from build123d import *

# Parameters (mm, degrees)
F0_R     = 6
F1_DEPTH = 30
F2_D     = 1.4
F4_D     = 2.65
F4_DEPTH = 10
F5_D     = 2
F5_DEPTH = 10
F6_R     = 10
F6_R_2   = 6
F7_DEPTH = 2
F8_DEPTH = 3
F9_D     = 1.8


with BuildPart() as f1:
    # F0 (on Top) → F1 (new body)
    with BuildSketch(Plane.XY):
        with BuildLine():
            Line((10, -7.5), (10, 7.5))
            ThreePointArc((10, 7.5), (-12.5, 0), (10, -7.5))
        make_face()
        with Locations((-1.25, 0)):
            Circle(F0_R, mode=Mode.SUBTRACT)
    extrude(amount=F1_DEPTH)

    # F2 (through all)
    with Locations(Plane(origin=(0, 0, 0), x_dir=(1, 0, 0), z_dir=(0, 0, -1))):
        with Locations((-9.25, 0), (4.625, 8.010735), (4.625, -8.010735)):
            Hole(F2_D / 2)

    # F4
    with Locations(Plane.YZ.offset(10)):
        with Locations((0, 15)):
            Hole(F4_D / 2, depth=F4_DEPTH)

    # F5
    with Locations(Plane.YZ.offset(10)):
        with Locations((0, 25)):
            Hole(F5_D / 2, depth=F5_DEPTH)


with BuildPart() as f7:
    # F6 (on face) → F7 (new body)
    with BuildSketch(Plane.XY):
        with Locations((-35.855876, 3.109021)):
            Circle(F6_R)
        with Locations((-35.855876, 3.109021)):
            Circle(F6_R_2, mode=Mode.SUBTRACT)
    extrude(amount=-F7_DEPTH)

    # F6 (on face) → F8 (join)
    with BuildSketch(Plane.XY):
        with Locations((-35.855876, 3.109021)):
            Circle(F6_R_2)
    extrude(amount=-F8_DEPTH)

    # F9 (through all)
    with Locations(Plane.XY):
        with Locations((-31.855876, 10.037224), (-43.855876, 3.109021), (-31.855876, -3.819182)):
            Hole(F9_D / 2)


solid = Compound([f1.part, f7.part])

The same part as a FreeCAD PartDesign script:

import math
import FreeCAD as App
import Part
import Sketcher
from FreeCAD import Vector

doc = App.newDocument("Part")
params = doc.addObject("Spreadsheet::Sheet", "Params")
for row, (alias, value) in enumerate([
    ("sketch1_diameter", "12 mm"),
    ("sketch1_radius", "12.5 mm"),
    ("sketch1_height", "15 mm"),
    ("pad1_length", "30 mm"),
    ("sketch2_diameter", "1.4 mm"),
    ("hole_diameter", "1.4 mm"),
    ("sketch3_diameter", "2.65 mm"),
    ("hole2_diameter", "2.65 mm"),
    ("hole2_depth", "10 mm"),
    ("sketch4_diameter", "2 mm"),
    ("hole3_diameter", "2 mm"),
    ("hole3_depth", "10 mm"),
    ("sketch5_diameter", "20 mm"),
    ("sketch5_diameter2", "12 mm"),
    ("pad2_length", "2 mm"),
    ("sketch6_diameter", "12 mm"),
    ("pad3_length", "3 mm"),
    ("sketch7_diameter", "1.8 mm"),
    ("hole4_diameter", "1.8 mm"),
], start=1):
    params.set(f"A{row}", alias)
    params.set(f"B{row}", "=" + value)
    params.setAlias(f"B{row}", alias)

body = doc.addObject("PartDesign::Body", "Body")

# Sketch on XY plane
sketch1 = doc.addObject("Sketcher::SketchObject", "Sketch")
body.addObject(sketch1)
sketch1.AttachmentSupport = (doc.XY_Plane, [""])
sketch1.MapMode = "FlatFace"
sketch1.addGeometry(Part.LineSegment(Vector(10, -8, 0), Vector(10, 8, 0)), False)
sketch1.addGeometry(Part.ArcOfCircle(Part.Circle(Vector(0, 0, 0), Vector(0, 0, 1), 12), math.radians(37), math.radians(323)), False)
sketch1.addGeometry(Part.Circle(Vector(-1, 0, 0), Vector(0, 0, 1), 6), False)
sketch1.addConstraint(Sketcher.Constraint("Coincident", 0, 1, 1, 2))
sketch1.addConstraint(Sketcher.Constraint("Coincident", 1, 1, 0, 2))
sketch1.addConstraint(Sketcher.Constraint("Vertical", 0))
sketch1.addConstraint(Sketcher.Constraint("Coincident", 1, 3, -1, 1))
sketch1.addConstraint(Sketcher.Constraint("PointOnObject", 2, 3, -1))
sketch1.addConstraint(Sketcher.Constraint("Diameter", 2, 12.0))
sketch1.addConstraint(Sketcher.Constraint("Radius", 1, 12.5))
sketch1.addConstraint(Sketcher.Constraint("DistanceY", 0, 1, 0, 2, 15.0))
sketch1.addConstraint(Sketcher.Constraint("DistanceX", 2, 3, -1, 1, 1.25))
sketch1.setExpression("Constraints[5]", "Params.sketch1_diameter")
sketch1.setExpression("Constraints[6]", "Params.sketch1_radius")
sketch1.setExpression("Constraints[7]", "Params.sketch1_height")
pad1 = doc.addObject("PartDesign::Pad", "Pad")
body.addObject(pad1)
pad1.Profile = sketch1
pad1.setExpression("Length", "Params.pad1_length")

# Sketch on XY plane
sketch2 = doc.addObject("Sketcher::SketchObject", "Sketch001")
body.addObject(sketch2)
sketch2.AttachmentSupport = (doc.XY_Plane, [""])
sketch2.MapMode = "FlatFace"
sketch2.addGeometry(Part.Circle(Vector(-9.2, 0, 0), Vector(0, 0, 1), 0.7), False)
sketch2.addGeometry(Part.Circle(Vector(4.6, -8, 0), Vector(0, 0, 1), 0.7), False)
sketch2.addGeometry(Part.Circle(Vector(4.6, 8, 0), Vector(0, 0, 1), 0.7), False)
sketch2.addConstraint(Sketcher.Constraint("Equal", 0, 1))
sketch2.addConstraint(Sketcher.Constraint("Equal", 1, 2))
sketch2.addConstraint(Sketcher.Constraint("Symmetric", 1, 3, 2, 3, -1))
sketch2.addConstraint(Sketcher.Constraint("PointOnObject", 0, 3, -1))
sketch2.addConstraint(Sketcher.Constraint("Diameter", 0, 1.4))
sketch2.addConstraint(Sketcher.Constraint("DistanceX", 0, 3, -1, 1, 9.25))
sketch2.addConstraint(Sketcher.Constraint("DistanceX", -1, 1, 1, 3, 4.625))
sketch2.addConstraint(Sketcher.Constraint("DistanceY", 1, 3, 2, 3, 16.02147))
sketch2.setExpression("Constraints[4]", "Params.sketch2_diameter")
doc.recompute()
hole = doc.addObject("PartDesign::Hole", "Hole")
body.addObject(hole)
hole.Profile = sketch2
hole.ThreadType = "None"
hole.setExpression("Diameter", "Params.hole_diameter")
hole.DepthType = "ThroughAll"
hole.Reversed = True

# Sketch on YZ plane
sketch3 = doc.addObject("Sketcher::SketchObject", "Sketch002")
body.addObject(sketch3)
sketch3.AttachmentSupport = (doc.YZ_Plane, [""])
sketch3.MapMode = "FlatFace"
sketch3.AttachmentOffset = App.Placement(Vector(0, 0, 10), App.Rotation())
sketch3.addGeometry(Part.Circle(Vector(0, 15, 0), Vector(0, 0, 1), 1.3), False)
sketch3.addConstraint(Sketcher.Constraint("PointOnObject", 0, 3, -2))
sketch3.addConstraint(Sketcher.Constraint("Diameter", 0, 2.65))
sketch3.addConstraint(Sketcher.Constraint("DistanceY", -1, 1, 0, 3, 15.0))
sketch3.setExpression("Constraints[1]", "Params.sketch3_diameter")
doc.recompute()
hole2 = doc.addObject("PartDesign::Hole", "Hole001")
body.addObject(hole2)
hole2.Profile = sketch3
hole2.ThreadType = "None"
hole2.setExpression("Diameter", "Params.hole2_diameter")
hole2.DepthType = "Dimension"
hole2.setExpression("Depth", "Params.hole2_depth")
hole2.DrillPoint = "Flat"

# Sketch on YZ plane
sketch4 = doc.addObject("Sketcher::SketchObject", "Sketch003")
body.addObject(sketch4)
sketch4.AttachmentSupport = (doc.YZ_Plane, [""])
sketch4.MapMode = "FlatFace"
sketch4.AttachmentOffset = App.Placement(Vector(0, 0, 10), App.Rotation())
sketch4.addGeometry(Part.Circle(Vector(0, 25, 0), Vector(0, 0, 1), 1), False)
sketch4.addConstraint(Sketcher.Constraint("PointOnObject", 0, 3, -2))
sketch4.addConstraint(Sketcher.Constraint("Diameter", 0, 2.0))
sketch4.addConstraint(Sketcher.Constraint("DistanceY", -1, 1, 0, 3, 25.0))
sketch4.setExpression("Constraints[1]", "Params.sketch4_diameter")
doc.recompute()
hole3 = doc.addObject("PartDesign::Hole", "Hole002")
body.addObject(hole3)
hole3.Profile = sketch4
hole3.ThreadType = "None"
hole3.setExpression("Diameter", "Params.hole3_diameter")
hole3.DepthType = "Dimension"
hole3.setExpression("Depth", "Params.hole3_depth")
hole3.DrillPoint = "Flat"
body2 = doc.addObject("PartDesign::Body", "Body001")

# Sketch on XY plane
sketch5 = doc.addObject("Sketcher::SketchObject", "Sketch004")
body2.addObject(sketch5)
sketch5.AttachmentSupport = (doc.getObject("XY_Plane001"), [""])
sketch5.MapMode = "FlatFace"
sketch5.addGeometry(Part.Circle(Vector(-36, 3, 0), Vector(0, 0, 1), 10), False)
sketch5.addGeometry(Part.Circle(Vector(-36, 3, 0), Vector(0, 0, 1), 6), False)
sketch5.addConstraint(Sketcher.Constraint("Coincident", 1, 3, 0, 3))
sketch5.addConstraint(Sketcher.Constraint("Diameter", 0, 20.0))
sketch5.addConstraint(Sketcher.Constraint("Diameter", 1, 12.0))
sketch5.addConstraint(Sketcher.Constraint("DistanceY", -1, 1, 0, 3, 3.109021))
sketch5.addConstraint(Sketcher.Constraint("DistanceX", 0, 3, -1, 1, 35.855876))
sketch5.setExpression("Constraints[1]", "Params.sketch5_diameter")
sketch5.setExpression("Constraints[2]", "Params.sketch5_diameter2")
pad2 = doc.addObject("PartDesign::Pad", "Pad001")
body2.addObject(pad2)
pad2.Profile = sketch5
pad2.setExpression("Length", "Params.pad2_length")
pad2.Reversed = True

# Sketch on XY plane
sketch6 = doc.addObject("Sketcher::SketchObject", "Sketch005")
body2.addObject(sketch6)
sketch6.AttachmentSupport = (doc.getObject("XY_Plane001"), [""])
sketch6.MapMode = "FlatFace"
sketch6.addGeometry(Part.Circle(Vector(-36, 3, 0), Vector(0, 0, 1), 6), False)
sketch6.addConstraint(Sketcher.Constraint("Diameter", 0, 12.0))
sketch6.addConstraint(Sketcher.Constraint("DistanceY", -1, 1, 0, 3, 3.109021))
sketch6.addConstraint(Sketcher.Constraint("DistanceX", 0, 3, -1, 1, 35.855876))
sketch6.setExpression("Constraints[0]", "Params.sketch6_diameter")
pad3 = doc.addObject("PartDesign::Pad", "Pad002")
body2.addObject(pad3)
pad3.Profile = sketch6
pad3.setExpression("Length", "Params.pad3_length")
pad3.Reversed = True

# Sketch on XY plane
sketch7 = doc.addObject("Sketcher::SketchObject", "Sketch006")
body2.addObject(sketch7)
sketch7.AttachmentSupport = (doc.getObject("XY_Plane001"), [""])
sketch7.MapMode = "FlatFace"
sketch7.addGeometry(Part.Circle(Vector(-31.9, 10, 0), Vector(0, 0, 1), 0.9), False)
sketch7.addGeometry(Part.Circle(Vector(-43.9, 3.1, 0), Vector(0, 0, 1), 0.9), False)
sketch7.addGeometry(Part.Circle(Vector(-31.9, -3.8, 0), Vector(0, 0, 1), 0.9), False)
sketch7.addConstraint(Sketcher.Constraint("Equal", 0, 1))
sketch7.addConstraint(Sketcher.Constraint("Equal", 1, 2))
sketch7.addConstraint(Sketcher.Constraint("Vertical", 0, 3, 2, 3))
sketch7.addConstraint(Sketcher.Constraint("Diameter", 0, 1.8))
sketch7.addConstraint(Sketcher.Constraint("DistanceX", 1, 3, 0, 3, 12.0))
sketch7.addConstraint(Sketcher.Constraint("DistanceY", -1, 1, 1, 3, 3.109021))
sketch7.addConstraint(Sketcher.Constraint("DistanceX", 0, 3, -1, 1, 31.855876))
sketch7.addConstraint(Sketcher.Constraint("DistanceY", -1, 1, 0, 3, 10.037224))
sketch7.addConstraint(Sketcher.Constraint("DistanceY", 2, 3, -1, 1, 3.819182))
sketch7.setExpression("Constraints[3]", "Params.sketch7_diameter")
doc.recompute()
hole4 = doc.addObject("PartDesign::Hole", "Hole003")
body2.addObject(hole4)
hole4.Profile = sketch7
hole4.ThreadType = "None"
hole4.setExpression("Diameter", "Params.hole4_diameter")
hole4.DepthType = "ThroughAll"

doc.recompute()
